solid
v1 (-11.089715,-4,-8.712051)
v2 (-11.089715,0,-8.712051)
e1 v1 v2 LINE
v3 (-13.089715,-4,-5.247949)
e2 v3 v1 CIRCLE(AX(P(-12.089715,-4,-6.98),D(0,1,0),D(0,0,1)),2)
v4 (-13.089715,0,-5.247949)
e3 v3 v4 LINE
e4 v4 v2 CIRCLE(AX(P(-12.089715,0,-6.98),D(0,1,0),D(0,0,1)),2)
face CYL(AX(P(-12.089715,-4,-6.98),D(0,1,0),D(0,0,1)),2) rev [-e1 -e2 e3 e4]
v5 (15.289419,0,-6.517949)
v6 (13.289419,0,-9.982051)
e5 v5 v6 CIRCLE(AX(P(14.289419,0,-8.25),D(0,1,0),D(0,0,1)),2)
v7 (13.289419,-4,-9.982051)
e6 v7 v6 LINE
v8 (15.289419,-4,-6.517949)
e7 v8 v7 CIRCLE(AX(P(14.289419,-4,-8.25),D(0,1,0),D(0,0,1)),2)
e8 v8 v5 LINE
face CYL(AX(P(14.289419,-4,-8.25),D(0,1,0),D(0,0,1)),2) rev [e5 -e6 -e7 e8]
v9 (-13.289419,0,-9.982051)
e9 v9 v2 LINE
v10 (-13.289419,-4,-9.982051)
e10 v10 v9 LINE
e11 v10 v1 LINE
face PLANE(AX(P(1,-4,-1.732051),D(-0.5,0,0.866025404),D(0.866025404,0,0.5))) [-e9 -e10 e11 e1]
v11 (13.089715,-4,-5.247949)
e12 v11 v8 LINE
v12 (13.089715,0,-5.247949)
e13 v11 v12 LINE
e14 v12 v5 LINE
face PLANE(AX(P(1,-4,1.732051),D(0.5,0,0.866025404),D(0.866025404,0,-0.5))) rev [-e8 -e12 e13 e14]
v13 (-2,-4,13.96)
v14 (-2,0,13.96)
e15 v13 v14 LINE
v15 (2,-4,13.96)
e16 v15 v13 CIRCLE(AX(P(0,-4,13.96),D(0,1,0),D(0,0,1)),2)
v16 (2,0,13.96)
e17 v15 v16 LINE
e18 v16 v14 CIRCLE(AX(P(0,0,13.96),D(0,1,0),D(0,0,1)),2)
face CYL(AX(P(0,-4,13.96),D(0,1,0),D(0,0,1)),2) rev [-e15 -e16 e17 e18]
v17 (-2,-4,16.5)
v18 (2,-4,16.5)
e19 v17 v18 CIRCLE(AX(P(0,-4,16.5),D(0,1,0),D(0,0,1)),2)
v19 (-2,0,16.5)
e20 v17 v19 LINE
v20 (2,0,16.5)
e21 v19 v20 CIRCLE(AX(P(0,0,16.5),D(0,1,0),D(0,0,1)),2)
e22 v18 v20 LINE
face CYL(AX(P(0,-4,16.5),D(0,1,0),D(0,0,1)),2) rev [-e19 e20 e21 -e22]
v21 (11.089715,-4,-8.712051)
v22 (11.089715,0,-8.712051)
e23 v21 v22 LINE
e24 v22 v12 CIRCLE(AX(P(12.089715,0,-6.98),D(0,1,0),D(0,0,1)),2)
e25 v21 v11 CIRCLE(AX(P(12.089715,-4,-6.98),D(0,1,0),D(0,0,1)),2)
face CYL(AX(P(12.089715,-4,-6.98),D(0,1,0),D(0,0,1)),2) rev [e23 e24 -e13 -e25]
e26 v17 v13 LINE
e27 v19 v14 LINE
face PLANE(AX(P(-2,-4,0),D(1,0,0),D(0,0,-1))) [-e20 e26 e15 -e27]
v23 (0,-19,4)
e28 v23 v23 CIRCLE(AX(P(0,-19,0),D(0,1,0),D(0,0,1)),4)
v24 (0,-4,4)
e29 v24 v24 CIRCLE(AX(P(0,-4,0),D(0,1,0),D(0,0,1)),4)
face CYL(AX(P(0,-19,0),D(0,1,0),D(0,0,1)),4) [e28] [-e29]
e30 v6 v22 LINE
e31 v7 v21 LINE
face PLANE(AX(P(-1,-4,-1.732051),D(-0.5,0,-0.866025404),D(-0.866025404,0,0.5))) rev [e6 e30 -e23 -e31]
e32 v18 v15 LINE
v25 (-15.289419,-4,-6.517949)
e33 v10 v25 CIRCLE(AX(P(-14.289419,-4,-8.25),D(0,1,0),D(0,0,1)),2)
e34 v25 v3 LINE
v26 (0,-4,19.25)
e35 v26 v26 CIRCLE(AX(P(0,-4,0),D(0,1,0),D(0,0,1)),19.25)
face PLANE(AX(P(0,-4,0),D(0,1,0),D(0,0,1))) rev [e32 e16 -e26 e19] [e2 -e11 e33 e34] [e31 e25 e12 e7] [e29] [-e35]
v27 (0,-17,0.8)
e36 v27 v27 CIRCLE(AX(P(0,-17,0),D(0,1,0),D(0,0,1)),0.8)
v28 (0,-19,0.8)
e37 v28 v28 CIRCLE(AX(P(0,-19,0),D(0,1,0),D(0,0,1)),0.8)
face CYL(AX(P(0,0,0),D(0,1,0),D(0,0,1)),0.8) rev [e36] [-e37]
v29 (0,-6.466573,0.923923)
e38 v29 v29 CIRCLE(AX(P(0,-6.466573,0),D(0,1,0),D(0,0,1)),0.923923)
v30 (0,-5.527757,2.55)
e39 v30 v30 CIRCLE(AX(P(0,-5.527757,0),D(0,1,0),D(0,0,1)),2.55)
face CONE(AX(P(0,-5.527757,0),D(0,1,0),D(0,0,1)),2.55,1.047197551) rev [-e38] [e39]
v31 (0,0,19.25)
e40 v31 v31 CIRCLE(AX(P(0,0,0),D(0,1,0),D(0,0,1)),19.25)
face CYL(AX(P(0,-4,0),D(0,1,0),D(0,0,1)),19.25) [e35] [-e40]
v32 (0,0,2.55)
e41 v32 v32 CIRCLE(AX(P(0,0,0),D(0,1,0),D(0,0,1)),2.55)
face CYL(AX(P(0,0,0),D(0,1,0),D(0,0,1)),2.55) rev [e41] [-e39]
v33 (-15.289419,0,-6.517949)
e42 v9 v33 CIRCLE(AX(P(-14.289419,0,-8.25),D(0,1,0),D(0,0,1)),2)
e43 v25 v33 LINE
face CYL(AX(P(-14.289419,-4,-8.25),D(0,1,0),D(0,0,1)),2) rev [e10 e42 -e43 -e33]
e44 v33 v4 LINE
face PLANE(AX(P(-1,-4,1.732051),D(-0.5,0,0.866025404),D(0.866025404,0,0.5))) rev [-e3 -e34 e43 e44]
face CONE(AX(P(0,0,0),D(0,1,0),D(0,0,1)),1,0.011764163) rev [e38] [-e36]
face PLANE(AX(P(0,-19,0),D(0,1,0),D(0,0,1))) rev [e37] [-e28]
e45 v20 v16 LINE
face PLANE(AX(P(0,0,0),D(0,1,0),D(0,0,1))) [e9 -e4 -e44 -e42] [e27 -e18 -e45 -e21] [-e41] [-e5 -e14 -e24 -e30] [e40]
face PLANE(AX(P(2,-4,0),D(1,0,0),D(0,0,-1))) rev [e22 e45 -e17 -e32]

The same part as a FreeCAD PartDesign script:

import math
import FreeCAD as App
import Part
import Sketcher
from FreeCAD import Vector
Q = App.Units.Quantity

doc = App.newDocument("Part")
body = doc.addObject("PartDesign::Body", "Body")

# Sketch on XZ plane
sketch1 = body.newObject("Sketcher::SketchObject", "Sketch")
sketch1.AttachmentSupport = (doc.getObject("XZ_Plane"), [""])
sketch1.MapMode = "FlatFace"
sketch1.addGeometry(Part.Circle(Vector(0, 0, 0), Vector(0, 0, 1), 19.25), False)
sketch1.addGeometry(Part.ArcOfCircle(Part.Circle(Vector(0, 16.5, 0), Vector(0, 0, 1), 2), math.radians(0), math.radians(180)), False)
sketch1.addGeometry(Part.LineSegment(Vector(-2, 16.5, 0), Vector(-2, 13.96, 0)), False)
sketch1.addGeometry(Part.ArcOfCircle(Part.Circle(Vector(0, 13.96, 0), Vector(0, 0, 1), 2), math.radians(180), math.radians(360)), False)
sketch1.addGeometry(Part.LineSegment(Vector(2, 13.96, 0), Vector(2, 16.5, 0)), False)
sketch1.addGeometry(Part.LineSegment(Vector(-13.289, -9.982, 0), Vector(-13.184, -9.921, 0)), False)
sketch1.addGeometry(Part.LineSegment(Vector(-13.184, -9.921, 0), Vector(-11.095, -8.715, 0)), False)
sketch1.addGeometry(Part.LineSegment(Vector(-11.095, -8.715, 0), Vector(-11.09, -8.712, 0)), False)
sketch1.addGeometry(Part.ArcOfCircle(Part.Circle(Vector(-12.09, -6.98, 0), Vector(0, 0, 1), 2), math.radians(-60), math.radians(120)), False)
sketch1.addGeometry(Part.LineSegment(Vector(-13.09, -5.248, 0), Vector(-15.184, -6.457, 0)), False)
sketch1.addGeometry(Part.LineSegment(Vector(-15.184, -6.457, 0), Vector(-15.289, -6.518, 0)), False)
sketch1.addGeometry(Part.ArcOfCircle(Part.Circle(Vector(-14.289, -8.25, 0), Vector(0, 0, 1), 2), math.radians(120), math.radians(300)), False)
sketch1.addGeometry(Part.Circle(Vector(0, 0, 0), Vector(0, 0, 1), 4), False)
sketch1.addGeometry(Part.LineSegment(Vector(15.289, -6.518, 0), Vector(15.184, -6.457, 0)), False)
sketch1.addGeometry(Part.LineSegment(Vector(15.184, -6.457, 0), Vector(13.09, -5.248, 0)), False)
sketch1.addGeometry(Part.ArcOfCircle(Part.Circle(Vector(12.09, -6.98, 0), Vector(0, 0, 1), 2), math.radians(60), math.radians(240)), False)
sketch1.addGeometry(Part.LineSegment(Vector(11.09, -8.712, 0), Vector(13.184, -9.921, 0)), False)
sketch1.addGeometry(Part.LineSegment(Vector(13.184, -9.921, 0), Vector(13.289, -9.982, 0)), False)
sketch1.addGeometry(Part.ArcOfCircle(Part.Circle(Vector(14.289, -8.25, 0), Vector(0, 0, 1), 2), math.radians(-120), math.radians(60)), False)
sketch1.addConstraint(Sketcher.Constraint("Tangent", 1, 2, 2, 1))
sketch1.addConstraint(Sketcher.Constraint("Tangent", 2, 2, 3, 1))
sketch1.addConstraint(Sketcher.Constraint("Tangent", 3, 2, 4, 1))
sketch1.addConstraint(Sketcher.Constraint("Tangent", 4, 2, 1, 1))
sketch1.addConstraint(Sketcher.Constraint("Coincident", 5, 2, 6, 1))
sketch1.addConstraint(Sketcher.Constraint("Coincident", 6, 2, 7, 1))
sketch1.addConstraint(Sketcher.Constraint("Tangent", 7, 2, 8, 1))
sketch1.addConstraint(Sketcher.Constraint("Tangent", 8, 2, 9, 1))
sketch1.addConstraint(Sketcher.Constraint("Coincident", 9, 2, 10, 1))
sketch1.addConstraint(Sketcher.Constraint("Tangent", 10, 2, 11, 1))
sketch1.addConstraint(Sketcher.Constraint("Tangent", 11, 2, 5, 1))
sketch1.addConstraint(Sketcher.Constraint("Coincident", 13, 2, 14, 1))
sketch1.addConstraint(Sketcher.Constraint("Tangent", 14, 2, 15, 1))
sketch1.addConstraint(Sketcher.Constraint("Tangent", 15, 2, 16, 1))
sketch1.addConstraint(Sketcher.Constraint("Coincident", 16, 2, 17, 1))
sketch1.addConstraint(Sketcher.Constraint("Tangent", 17, 2, 18, 1))
sketch1.addConstraint(Sketcher.Constraint("Tangent", 18, 2, 13, 1))
sketch1.addConstraint(Sketcher.Constraint("Vertical", 2))
sketch1.addConstraint(Sketcher.Constraint("Vertical", 4))
sketch1.addConstraint(Sketcher.Constraint("Coincident", 0, 3, -1, 1))
sketch1.addConstraint(Sketcher.Constraint("Coincident", 12, 3, -1, 1))
sketch1.addConstraint(Sketcher.Constraint("Equal", 3, 8))
sketch1.addConstraint(Sketcher.Constraint("Equal", 8, 11))
sketch1.addConstraint(Sketcher.Constraint("Equal", 11, 15))
sketch1.addConstraint(Sketcher.Constraint("Equal", 15, 18))
sketch1.addConstraint(Sketcher.Constraint("Symmetric", 8, 3, 15, 3, -2))
sketch1.addConstraint(Sketcher.Constraint("Symmetric", 11, 3, 18, 3, -2))
sketch1.addConstraint(Sketcher.Constraint("Symmetric", 9, 2, 13, 2, -2))
sketch1.addConstraint(Sketcher.Constraint("Symmetric", 5, 2, 16, 2, -2))
sketch1.addConstraint(Sketcher.Constraint("PointOnObject", 1, 3, -2))
sketch1.addConstraint(Sketcher.Constraint("Parallel", 5, 6))
sketch1.addConstraint(Sketcher.Constraint("Parallel", 6, 7))
sketch1.addConstraint(Sketcher.Constraint("Parallel", 6, 9))
sketch1.addConstraint(Sketcher.Constraint("Equal", 5, 10))
sketch1.addConstraint(Sketcher.Constraint("Diameter", 12, 8.0))
sketch1.addConstraint(Sketcher.Constraint("Radius", 1, 2.0))
sketch1.addConstraint(Sketcher.Constraint("Diameter", 0, 38.5))
sketch1.addConstraint(Sketcher.Constraint("Angle", 5, Q("30 deg")))
sketch1.addConstraint(Sketcher.Constraint("DistanceY", 2, 2, 2, 1, 2.54))
sketch1.addConstraint(Sketcher.Constraint("DistanceY", -1, 1, 1, 3, 16.5))
sketch1.addConstraint(Sketcher.Constraint("DistanceY", 8, 3, -1, 1, 6.98))
sketch1.addConstraint(Sketcher.Constraint("DistanceY", 11, 3, -1, 1, 8.25))
sketch1.addConstraint(Sketcher.Constraint("Distance", 5, 0.121661))
sketch1.addConstraint(Sketcher.Constraint("Distance", 6, 2.41226))
sketch1.addConstraint(Sketcher.Constraint("DistanceX", 11, 3, -1, 1, 14.289419))
pad1 = body.newObject("PartDesign::Pad", "Pad")
pad1.Profile = sketch1
pad1.Length = 4

# Sketch on XZ plane
sketch2 = body.newObject("Sketcher::SketchObject", "Sketch001")
sketch2.AttachmentSupport = (doc.getObject("XZ_Plane"), [""])
sketch2.MapMode = "FlatFace"
sketch2.addGeometry(Part.Circle(Vector(0, 0, 0), Vector(0, 0, 1), 4), False)
sketch2.addConstraint(Sketcher.Constraint("Coincident", 0, 3, -1, 1))
sketch2.addConstraint(Sketcher.Constraint("Diameter", 0, 8.0))
pad2 = body.newObject("PartDesign::Pad", "Pad001")
pad2.Profile = sketch2
pad2.Length = 19

# Sketch on YZ plane
sketch3 = body.newObject("Sketcher::SketchObject", "Sketch002")
sketch3.AttachmentSupport = (doc.getObject("YZ_Plane"), [""])
sketch3.MapMode = "FlatFace"
sketch3.addGeometry(Part.LineSegment(Vector(-19, 0, 0), Vector(-19, -0.8, 0)), False)
sketch3.addGeometry(Part.LineSegment(Vector(-19, -0.8, 0), Vector(-17, -0.8, 0)), False)
sketch3.addGeometry(Part.LineSegment(Vector(-17, -0.8, 0), Vector(0, -1, 0)), False)
sketch3.addGeometry(Part.LineSegment(Vector(0, -1, 0), Vector(0, 0, 0)), False)
sketch3.addGeometry(Part.LineSegment(Vector(0, 0, 0), Vector(-19, 0, 0)), False)
sketch3.addConstraint(Sketcher.Constraint("Coincident", 0, 2, 1, 1))
sketch3.addConstraint(Sketcher.Constraint("Coincident", 1, 2, 2, 1))
sketch3.addConstraint(Sketcher.Constraint("Coincident", 2, 2, 3, 1))
sketch3.addConstraint(Sketcher.Constraint("Coincident", 3, 2, 4, 1))
sketch3.addConstraint(Sketcher.Constraint("Coincident", 4, 2, 0, 1))
sketch3.addConstraint(Sketcher.Constraint("Vertical", 0))
sketch3.addConstraint(Sketcher.Constraint("Horizontal", 1))
sketch3.addConstraint(Sketcher.Constraint("Vertical", 3))
sketch3.addConstraint(Sketcher.Constraint("Horizontal", 4))
sketch3.addConstraint(Sketcher.Constraint("Coincident", 3, 2, -1, 1))
sketch3.addConstraint(Sketcher.Constraint("DistanceX", 1, 1, 1, 2, 2.0))
sketch3.addConstraint(Sketcher.Constraint("DistanceX", 4, 2, 4, 1, 19.0))
sketch3.addConstraint(Sketcher.Constraint("DistanceY", 3, 1, 3, 2, 1.0))
sketch3.addConstraint(Sketcher.Constraint("DistanceY", 0, 2, 0, 1, 0.8))
groove = body.newObject("PartDesign::Groove", "Groove")
groove.Profile = sketch3
groove.ReferenceAxis = (sketch3, ["H_Axis"])
groove.Angle = 360

# Sketch on XY plane
sketch4 = body.newObject("Sketcher::SketchObject", "Sketch003")
sketch4.AttachmentSupport = (doc.getObject("XY_Plane"), [""])
sketch4.MapMode = "FlatFace"
sketch4.addGeometry(Part.LineSegment(Vector(-2.5, -5.5, 0), Vector(0, -7, 0)), False)
sketch4.addGeometry(Part.LineSegment(Vector(0, -7, 0), Vector(0, 0, 0)), False)
sketch4.addGeometry(Part.LineSegment(Vector(0, 0, 0), Vector(-2.5, 0, 0)), False)
sketch4.addGeometry(Part.LineSegment(Vector(-2.5, 0, 0), Vector(-2.5, -5.5, 0)), False)
sketch4.addConstraint(Sketcher.Constraint("Coincident", 0, 2, 1, 1))
sketch4.addConstraint(Sketcher.Constraint("Coincident", 1, 2, 2, 1))
sketch4.addConstraint(Sketcher.Constraint("Coincident", 2, 2, 3, 1))
sketch4.addConstraint(Sketcher.Constraint("Coincident", 3, 2, 0, 1))
sketch4.addConstraint(Sketcher.Constraint("Vertical", 1))
sketch4.addConstraint(Sketcher.Constraint("Horizontal", 2))
sketch4.addConstraint(Sketcher.Constraint("Vertical", 3))
sketch4.addConstraint(Sketcher.Constraint("Coincident", 1, 2, -1, 1))
sketch4.addConstraint(Sketcher.Constraint("DistanceY", 1, 1, 1, 2, 7.0))
sketch4.addConstraint(Sketcher.Constraint("Angle", 0, Q("-30 deg")))
sketch4.addConstraint(Sketcher.Constraint("DistanceX", 2, 2, 2, 1, 2.55))
groove2 = body.newObject("PartDesign::Groove", "Groove001")
groove2.Profile = sketch4
groove2.ReferenceAxis = (sketch4, ["V_Axis"])
groove2.Angle = 360

doc.recompute()
